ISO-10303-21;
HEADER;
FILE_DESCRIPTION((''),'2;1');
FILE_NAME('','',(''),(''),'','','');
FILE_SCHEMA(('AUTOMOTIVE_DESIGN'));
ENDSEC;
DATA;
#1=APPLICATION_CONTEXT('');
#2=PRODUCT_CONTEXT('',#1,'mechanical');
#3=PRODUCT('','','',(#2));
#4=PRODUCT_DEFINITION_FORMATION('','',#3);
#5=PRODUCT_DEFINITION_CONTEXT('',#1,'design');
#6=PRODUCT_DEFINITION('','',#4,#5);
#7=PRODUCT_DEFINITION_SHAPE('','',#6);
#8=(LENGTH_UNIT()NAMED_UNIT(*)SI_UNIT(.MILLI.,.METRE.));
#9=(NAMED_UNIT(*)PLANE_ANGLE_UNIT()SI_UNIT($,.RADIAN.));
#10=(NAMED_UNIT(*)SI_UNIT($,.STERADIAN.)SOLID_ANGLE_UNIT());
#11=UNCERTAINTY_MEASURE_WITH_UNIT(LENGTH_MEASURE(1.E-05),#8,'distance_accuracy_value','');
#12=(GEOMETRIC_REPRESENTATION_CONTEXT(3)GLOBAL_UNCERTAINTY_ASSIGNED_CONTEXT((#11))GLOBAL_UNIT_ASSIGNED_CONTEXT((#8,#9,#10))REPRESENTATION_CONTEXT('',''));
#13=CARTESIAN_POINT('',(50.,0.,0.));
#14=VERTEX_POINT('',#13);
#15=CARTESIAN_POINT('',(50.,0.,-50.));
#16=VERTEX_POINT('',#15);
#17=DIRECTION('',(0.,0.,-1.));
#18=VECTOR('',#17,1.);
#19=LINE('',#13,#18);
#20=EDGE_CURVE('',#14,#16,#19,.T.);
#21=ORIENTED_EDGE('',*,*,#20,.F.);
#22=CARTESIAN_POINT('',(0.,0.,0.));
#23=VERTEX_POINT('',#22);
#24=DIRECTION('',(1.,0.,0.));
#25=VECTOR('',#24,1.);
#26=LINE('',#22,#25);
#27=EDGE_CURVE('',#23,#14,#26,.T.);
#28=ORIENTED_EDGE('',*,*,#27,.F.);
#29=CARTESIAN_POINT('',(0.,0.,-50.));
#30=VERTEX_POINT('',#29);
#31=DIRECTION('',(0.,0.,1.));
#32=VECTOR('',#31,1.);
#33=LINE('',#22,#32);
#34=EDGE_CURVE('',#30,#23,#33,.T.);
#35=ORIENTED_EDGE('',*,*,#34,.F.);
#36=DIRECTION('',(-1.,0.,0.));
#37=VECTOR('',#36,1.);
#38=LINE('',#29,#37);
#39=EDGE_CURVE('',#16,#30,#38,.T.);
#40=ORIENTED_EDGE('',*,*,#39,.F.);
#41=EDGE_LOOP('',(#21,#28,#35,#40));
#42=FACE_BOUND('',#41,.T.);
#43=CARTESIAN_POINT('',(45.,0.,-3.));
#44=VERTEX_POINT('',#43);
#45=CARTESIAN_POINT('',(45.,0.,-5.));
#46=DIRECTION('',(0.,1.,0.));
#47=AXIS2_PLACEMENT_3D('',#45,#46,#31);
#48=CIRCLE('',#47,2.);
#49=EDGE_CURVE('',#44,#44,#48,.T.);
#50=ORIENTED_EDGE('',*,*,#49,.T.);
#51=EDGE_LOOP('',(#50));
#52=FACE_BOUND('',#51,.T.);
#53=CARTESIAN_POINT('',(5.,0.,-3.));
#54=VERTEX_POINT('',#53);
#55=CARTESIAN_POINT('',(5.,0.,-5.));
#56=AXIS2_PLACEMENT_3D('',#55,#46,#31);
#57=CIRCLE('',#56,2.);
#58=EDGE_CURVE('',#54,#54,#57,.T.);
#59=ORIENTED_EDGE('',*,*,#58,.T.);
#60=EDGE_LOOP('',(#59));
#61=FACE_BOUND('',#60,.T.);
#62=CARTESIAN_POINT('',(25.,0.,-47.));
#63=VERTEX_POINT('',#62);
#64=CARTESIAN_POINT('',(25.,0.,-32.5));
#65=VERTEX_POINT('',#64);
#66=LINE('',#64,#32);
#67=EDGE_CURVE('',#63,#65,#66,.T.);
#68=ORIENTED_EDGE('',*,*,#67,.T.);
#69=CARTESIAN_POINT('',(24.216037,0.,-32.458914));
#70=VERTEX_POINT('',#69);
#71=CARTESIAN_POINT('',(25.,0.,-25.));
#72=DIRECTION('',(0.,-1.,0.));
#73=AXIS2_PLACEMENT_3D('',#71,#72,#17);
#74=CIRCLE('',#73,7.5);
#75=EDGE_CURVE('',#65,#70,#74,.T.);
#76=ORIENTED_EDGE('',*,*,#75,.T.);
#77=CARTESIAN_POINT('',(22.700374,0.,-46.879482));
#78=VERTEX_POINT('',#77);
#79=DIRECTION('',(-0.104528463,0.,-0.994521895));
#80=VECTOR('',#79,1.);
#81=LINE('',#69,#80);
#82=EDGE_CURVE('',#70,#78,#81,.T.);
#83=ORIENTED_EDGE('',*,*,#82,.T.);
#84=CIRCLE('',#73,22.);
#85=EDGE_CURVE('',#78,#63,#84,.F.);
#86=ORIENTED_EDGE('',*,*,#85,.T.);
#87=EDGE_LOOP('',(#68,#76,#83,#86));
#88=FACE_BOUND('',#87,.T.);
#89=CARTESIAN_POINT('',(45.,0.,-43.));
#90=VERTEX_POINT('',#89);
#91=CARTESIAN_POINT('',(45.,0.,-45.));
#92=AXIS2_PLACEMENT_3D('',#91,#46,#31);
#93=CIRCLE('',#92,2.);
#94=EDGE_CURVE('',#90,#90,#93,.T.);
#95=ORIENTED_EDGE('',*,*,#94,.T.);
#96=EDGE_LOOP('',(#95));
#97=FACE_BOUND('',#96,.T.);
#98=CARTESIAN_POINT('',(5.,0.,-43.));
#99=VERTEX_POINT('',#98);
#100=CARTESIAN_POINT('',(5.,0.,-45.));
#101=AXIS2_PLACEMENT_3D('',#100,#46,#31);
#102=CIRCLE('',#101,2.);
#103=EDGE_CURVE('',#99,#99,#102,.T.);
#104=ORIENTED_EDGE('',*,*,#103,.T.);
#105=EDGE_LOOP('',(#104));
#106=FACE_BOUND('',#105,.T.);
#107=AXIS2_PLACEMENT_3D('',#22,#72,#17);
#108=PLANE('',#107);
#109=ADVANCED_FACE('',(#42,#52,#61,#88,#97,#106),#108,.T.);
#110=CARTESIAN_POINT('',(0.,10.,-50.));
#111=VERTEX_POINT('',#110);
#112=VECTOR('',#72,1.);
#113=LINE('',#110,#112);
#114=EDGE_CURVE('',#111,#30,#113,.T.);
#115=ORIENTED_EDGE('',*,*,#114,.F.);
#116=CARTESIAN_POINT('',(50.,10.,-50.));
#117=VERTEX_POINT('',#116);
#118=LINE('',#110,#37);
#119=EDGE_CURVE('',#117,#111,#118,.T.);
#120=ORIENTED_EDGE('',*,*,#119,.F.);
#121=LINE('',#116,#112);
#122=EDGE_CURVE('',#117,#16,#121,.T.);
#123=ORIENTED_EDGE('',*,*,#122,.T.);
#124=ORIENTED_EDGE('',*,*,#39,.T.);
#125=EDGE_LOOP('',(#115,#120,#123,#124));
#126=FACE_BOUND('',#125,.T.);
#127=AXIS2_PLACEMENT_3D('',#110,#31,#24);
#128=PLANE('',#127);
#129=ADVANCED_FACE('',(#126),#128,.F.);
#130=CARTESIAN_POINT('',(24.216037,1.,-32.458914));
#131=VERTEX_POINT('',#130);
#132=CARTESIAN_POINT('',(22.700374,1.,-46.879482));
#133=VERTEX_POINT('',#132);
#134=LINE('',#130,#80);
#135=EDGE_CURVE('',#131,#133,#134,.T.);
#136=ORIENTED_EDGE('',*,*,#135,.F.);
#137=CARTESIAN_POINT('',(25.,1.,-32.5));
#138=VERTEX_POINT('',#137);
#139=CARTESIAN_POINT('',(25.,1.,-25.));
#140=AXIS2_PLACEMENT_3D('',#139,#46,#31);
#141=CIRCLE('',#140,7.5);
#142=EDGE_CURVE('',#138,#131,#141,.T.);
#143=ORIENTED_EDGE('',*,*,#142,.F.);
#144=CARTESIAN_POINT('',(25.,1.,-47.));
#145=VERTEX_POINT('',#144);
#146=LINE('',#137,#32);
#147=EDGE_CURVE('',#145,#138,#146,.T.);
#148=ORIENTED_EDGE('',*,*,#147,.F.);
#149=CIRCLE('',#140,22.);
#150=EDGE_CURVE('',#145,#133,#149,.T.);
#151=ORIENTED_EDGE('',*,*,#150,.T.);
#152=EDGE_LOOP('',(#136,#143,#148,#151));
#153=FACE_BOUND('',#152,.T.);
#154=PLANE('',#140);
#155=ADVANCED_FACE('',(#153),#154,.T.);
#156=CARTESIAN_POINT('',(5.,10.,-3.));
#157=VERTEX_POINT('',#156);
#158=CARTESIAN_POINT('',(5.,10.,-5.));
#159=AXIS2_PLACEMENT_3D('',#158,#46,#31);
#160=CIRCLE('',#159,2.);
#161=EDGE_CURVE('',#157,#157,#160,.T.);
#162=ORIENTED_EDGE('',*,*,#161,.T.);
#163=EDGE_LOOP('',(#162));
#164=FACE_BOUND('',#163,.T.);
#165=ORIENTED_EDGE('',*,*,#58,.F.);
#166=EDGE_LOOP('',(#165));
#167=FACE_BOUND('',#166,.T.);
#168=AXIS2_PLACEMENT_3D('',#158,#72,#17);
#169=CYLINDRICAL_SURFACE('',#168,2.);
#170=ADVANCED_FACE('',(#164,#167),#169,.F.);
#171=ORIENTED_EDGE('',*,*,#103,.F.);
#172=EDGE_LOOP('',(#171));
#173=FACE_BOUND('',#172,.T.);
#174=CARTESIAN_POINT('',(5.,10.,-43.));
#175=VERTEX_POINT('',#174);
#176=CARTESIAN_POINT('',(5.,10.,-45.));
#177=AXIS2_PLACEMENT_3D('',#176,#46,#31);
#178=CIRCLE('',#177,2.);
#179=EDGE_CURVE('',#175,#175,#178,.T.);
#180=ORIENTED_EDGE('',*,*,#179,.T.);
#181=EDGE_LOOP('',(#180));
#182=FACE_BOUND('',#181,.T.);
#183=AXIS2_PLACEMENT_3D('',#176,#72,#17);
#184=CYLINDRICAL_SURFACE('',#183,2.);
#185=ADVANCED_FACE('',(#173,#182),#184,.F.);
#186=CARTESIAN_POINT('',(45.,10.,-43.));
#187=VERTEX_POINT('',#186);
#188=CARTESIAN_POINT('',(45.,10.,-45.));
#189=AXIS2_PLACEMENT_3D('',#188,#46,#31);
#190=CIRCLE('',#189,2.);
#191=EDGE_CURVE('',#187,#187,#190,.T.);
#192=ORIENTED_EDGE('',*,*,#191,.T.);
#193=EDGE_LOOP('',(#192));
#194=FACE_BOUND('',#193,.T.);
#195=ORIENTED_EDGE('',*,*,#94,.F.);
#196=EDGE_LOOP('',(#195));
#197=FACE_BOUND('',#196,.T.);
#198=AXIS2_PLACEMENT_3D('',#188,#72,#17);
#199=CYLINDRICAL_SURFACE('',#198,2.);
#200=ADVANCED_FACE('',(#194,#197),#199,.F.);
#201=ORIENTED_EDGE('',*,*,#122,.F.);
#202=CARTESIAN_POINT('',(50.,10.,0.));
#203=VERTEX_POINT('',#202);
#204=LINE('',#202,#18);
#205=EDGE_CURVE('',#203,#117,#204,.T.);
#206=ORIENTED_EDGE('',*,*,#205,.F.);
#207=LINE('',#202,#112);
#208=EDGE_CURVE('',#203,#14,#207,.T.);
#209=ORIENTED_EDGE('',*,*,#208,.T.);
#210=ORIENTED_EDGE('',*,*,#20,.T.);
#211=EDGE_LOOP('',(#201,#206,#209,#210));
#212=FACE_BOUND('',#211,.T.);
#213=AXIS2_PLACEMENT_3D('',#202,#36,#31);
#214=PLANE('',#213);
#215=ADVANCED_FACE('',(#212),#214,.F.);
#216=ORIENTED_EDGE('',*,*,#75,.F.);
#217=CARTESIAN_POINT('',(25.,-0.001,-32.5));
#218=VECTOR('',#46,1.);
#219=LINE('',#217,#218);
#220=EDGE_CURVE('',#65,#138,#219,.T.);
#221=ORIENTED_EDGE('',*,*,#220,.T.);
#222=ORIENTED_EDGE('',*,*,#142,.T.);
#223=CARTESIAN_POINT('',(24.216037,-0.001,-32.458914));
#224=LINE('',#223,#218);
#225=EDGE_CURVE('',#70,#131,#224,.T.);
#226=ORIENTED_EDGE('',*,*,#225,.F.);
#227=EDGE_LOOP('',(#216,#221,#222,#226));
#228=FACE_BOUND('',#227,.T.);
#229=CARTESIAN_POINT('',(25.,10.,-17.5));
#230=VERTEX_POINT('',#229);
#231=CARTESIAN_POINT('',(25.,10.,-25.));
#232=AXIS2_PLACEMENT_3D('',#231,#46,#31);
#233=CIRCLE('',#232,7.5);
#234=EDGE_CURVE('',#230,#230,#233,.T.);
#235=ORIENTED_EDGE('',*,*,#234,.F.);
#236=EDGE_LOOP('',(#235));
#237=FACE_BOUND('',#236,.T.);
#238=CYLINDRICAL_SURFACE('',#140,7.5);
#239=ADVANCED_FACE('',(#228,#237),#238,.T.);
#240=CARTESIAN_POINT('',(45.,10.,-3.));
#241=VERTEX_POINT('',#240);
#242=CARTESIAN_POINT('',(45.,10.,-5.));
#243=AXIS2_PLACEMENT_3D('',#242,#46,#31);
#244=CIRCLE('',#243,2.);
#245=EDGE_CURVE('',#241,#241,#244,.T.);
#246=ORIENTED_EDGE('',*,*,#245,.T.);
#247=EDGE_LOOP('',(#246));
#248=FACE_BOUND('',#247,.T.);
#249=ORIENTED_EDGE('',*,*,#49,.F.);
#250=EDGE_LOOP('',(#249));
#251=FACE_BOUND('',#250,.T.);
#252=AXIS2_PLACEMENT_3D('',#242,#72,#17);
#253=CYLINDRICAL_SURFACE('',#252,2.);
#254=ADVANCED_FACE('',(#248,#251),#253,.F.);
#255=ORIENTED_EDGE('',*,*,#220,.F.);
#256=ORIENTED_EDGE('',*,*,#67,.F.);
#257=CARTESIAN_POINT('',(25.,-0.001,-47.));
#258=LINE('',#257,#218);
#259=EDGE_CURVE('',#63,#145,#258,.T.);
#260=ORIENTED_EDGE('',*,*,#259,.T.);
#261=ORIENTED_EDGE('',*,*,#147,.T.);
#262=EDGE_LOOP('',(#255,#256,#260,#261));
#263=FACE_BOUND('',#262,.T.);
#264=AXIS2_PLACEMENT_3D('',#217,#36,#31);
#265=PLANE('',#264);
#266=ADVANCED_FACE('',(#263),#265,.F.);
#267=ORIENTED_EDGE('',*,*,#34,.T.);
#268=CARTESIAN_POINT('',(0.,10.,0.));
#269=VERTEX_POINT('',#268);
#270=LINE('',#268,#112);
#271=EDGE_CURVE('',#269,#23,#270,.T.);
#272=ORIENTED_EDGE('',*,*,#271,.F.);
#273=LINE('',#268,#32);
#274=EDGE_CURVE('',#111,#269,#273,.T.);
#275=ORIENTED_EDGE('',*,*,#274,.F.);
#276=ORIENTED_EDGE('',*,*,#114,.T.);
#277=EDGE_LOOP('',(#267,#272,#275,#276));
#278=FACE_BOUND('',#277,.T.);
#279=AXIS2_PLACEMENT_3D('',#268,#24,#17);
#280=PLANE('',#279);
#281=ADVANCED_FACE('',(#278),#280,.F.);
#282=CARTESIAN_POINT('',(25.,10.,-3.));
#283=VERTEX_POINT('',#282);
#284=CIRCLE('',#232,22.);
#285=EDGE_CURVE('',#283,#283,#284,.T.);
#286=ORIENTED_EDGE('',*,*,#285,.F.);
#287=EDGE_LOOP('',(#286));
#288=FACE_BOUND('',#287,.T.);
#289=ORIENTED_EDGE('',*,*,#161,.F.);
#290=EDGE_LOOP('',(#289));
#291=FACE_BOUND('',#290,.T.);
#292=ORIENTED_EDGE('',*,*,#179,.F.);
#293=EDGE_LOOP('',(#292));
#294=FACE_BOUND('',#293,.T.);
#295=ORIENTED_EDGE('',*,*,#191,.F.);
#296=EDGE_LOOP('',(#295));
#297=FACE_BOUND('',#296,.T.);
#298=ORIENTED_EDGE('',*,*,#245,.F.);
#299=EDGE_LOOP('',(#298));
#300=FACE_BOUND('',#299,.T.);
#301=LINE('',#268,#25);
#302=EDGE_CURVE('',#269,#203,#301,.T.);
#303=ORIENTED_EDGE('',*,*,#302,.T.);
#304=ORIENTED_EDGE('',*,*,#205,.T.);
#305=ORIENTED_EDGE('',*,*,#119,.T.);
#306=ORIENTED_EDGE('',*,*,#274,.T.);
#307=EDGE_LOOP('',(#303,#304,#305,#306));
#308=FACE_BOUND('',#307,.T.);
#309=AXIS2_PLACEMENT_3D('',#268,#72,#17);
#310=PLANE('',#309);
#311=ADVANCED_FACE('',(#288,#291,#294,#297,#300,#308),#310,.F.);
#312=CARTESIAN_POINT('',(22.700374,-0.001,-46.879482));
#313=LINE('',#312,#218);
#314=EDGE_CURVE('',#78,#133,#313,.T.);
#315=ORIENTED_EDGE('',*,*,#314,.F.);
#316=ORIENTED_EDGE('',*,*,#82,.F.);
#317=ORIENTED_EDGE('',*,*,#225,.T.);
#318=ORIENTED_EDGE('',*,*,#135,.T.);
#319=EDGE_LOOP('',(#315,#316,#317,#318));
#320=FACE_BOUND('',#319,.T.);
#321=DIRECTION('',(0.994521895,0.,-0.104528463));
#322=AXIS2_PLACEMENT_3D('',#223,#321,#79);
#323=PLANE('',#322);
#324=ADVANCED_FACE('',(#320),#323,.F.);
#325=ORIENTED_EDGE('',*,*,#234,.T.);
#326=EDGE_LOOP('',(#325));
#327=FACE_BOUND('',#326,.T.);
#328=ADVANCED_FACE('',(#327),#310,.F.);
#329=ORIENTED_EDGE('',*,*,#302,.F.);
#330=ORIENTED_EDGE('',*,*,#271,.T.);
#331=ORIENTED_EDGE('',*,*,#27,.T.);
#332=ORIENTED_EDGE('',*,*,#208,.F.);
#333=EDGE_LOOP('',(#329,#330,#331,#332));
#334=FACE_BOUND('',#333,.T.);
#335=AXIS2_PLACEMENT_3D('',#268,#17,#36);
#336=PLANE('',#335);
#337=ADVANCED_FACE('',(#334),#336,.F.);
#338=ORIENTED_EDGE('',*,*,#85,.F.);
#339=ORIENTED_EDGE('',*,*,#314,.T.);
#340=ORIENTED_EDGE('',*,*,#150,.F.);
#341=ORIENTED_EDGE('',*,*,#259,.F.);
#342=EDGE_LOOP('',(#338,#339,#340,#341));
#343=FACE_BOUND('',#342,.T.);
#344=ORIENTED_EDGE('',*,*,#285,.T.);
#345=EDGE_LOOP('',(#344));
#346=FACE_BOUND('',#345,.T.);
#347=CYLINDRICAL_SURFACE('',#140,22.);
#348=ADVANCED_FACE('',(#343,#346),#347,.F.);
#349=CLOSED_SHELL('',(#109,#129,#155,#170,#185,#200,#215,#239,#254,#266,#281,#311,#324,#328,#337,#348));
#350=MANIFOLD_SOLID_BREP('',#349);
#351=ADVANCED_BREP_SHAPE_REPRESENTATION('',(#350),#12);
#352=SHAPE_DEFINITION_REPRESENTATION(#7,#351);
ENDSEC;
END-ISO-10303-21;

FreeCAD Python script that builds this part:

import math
import FreeCAD as App
import Part
import Sketcher

V = App.Vector
Q = App.Units.Quantity


def add_polygon(sketch, points):
    """Adds a closed chain of lines whose ends are joined by coincident constraints."""
    first, n = sketch.GeometryCount, len(points)
    for a, b in zip(points, points[1:] + points[:1]):
        sketch.addGeometry(Part.LineSegment(App.Vector(*a, 0), App.Vector(*b, 0)), False)
    for i in range(n):
        sketch.addConstraint(Sketcher.Constraint("Coincident", first + i, 2, first + (i + 1) % n, 1))

doc = App.newDocument("Part")
body = doc.addObject("PartDesign::Body", "Body")

# Sketch on XZ plane
sketch1 = doc.addObject("Sketcher::SketchObject", "Sketch")
body.addObject(sketch1)
sketch1.AttachmentSupport = (doc.XZ_Plane, [""])
sketch1.MapMode = "FlatFace"
add_polygon(sketch1, [(0, -50), (0, 0), (50, 0), (50, -50)])  # lines 0-3
sketch1.addGeometry(Part.Circle(V(5, -5, 0), V(0, 0, 1), 2), False)  # 4
sketch1.addGeometry(Part.Circle(V(45, -5, 0), V(0, 0, 1), 2), False)  # 5
sketch1.addGeometry(Part.Circle(V(5, -45, 0), V(0, 0, 1), 2), False)  # 6
sketch1.addGeometry(Part.Circle(V(45, -45, 0), V(0, 0, 1), 2), False)  # 7
sketch1.addConstraint([
    Sketcher.Constraint("Vertical", 0),
    Sketcher.Constraint("Horizontal", 1),
    Sketcher.Constraint("Vertical", 2),
    Sketcher.Constraint("Horizontal", 3),
    Sketcher.Constraint("Coincident", 0, 2, -1, 1),
    Sketcher.Constraint("Equal", 4, 5),
    Sketcher.Constraint("Equal", 5, 6),
    Sketcher.Constraint("Equal", 6, 7),
    Sketcher.Constraint("Horizontal", 4, 3, 5, 3),
    Sketcher.Constraint("Horizontal", 6, 3, 7, 3),
    Sketcher.Constraint("Vertical", 4, 3, 6, 3),
    Sketcher.Constraint("Vertical", 5, 3, 7, 3),
    Sketcher.Constraint("Equal", 3, 0),
    Sketcher.Constraint("Diameter", 4, 4.0),
    Sketcher.Constraint("DistanceX", 1, 1, 1, 2, 50.0),
    Sketcher.Constraint("DistanceX", -1, 1, 4, 3, 5.0),
    Sketcher.Constraint("DistanceY", 4, 3, -1, 1, 5.0),
    Sketcher.Constraint("DistanceX", -1, 1, 5, 3, 45.0),
    Sketcher.Constraint("DistanceY", 6, 3, -1, 1, 45.0),
])
pad1 = doc.addObject("PartDesign::Pad", "Pad")
body.addObject(pad1)
pad1.Profile = sketch1
pad1.Length = 10
pad1.Reversed = True

# Sketch on XZ plane
sketch2 = doc.addObject("Sketcher::SketchObject", "Sketch001")
body.addObject(sketch2)
sketch2.AttachmentSupport = (doc.XZ_Plane, [""])
sketch2.MapMode = "FlatFace"
sketch2.AttachmentOffset = App.Placement(V(0, 0, -10), App.Rotation())
sketch2.addGeometry([
    Part.Circle(V(25, -25, 0), V(0, 0, 1), 22),
    Part.Circle(V(25, -25, 0), V(0, 0, 1), 7.5),
], False)
sketch2.addConstraint([
    Sketcher.Constraint("Coincident", 1, 3, 0, 3),
    Sketcher.Constraint("Diameter", 0, 44.0),
    Sketcher.Constraint("Diameter", 1, 15.0),
    Sketcher.Constraint("DistanceX", -1, 1, 0, 3, 25.0),
    Sketcher.Constraint("DistanceY", 0, 3, -1, 1, 25.0),
])
pocket1 = doc.addObject("PartDesign::Pocket", "Pocket")
body.addObject(pocket1)
pocket1.Profile = sketch2
pocket1.Length = 9
pocket1.Reversed = True

# Sketch on XZ plane
sketch3 = doc.addObject("Sketcher::SketchObject", "Sketch002")
body.addObject(sketch3)
sketch3.AttachmentSupport = (doc.XZ_Plane, [""])
sketch3.MapMode = "FlatFace"
sketch3.AttachmentOffset = App.Placement(V(0, 0, -1), App.Rotation())
sketch3.addGeometry([
    Part.LineSegment(V(24.216037, -32.458914, 0), V(22.700374, -46.879482, 0)),
    Part.ArcOfCircle(Part.Circle(V(25, -25, 0), V(0, 0, 1), 22), math.radians(-90), math.radians(264)),
    Part.LineSegment(V(25, -47, 0), V(25, -32.5, 0)),
    Part.ArcOfCircle(Part.Circle(V(25, -25, 0), V(0, 0, 1), 7.5), math.radians(-90), math.radians(264)),
], False)
sketch3.addConstraint([
    Sketcher.Constraint("Coincident", 0, 2, 1, 2),
    Sketcher.Constraint("Coincident", 1, 1, 2, 1),
    Sketcher.Constraint("Coincident", 2, 2, 3, 1),
    Sketcher.Constraint("Coincident", 3, 2, 0, 1),
    Sketcher.Constraint("Vertical", 2),
    Sketcher.Constraint("Coincident", 3, 3, 1, 3),
    Sketcher.Constraint("Vertical", 3, 3, 1, 1),
    Sketcher.Constraint("Radius", 1, 22.0),
    Sketcher.Constraint("Radius", 3, 7.5),
    Sketcher.Constraint("Angle", 0, Q("-96 deg")),
    Sketcher.Constraint("DistanceX", -1, 1, 1, 3, 25.0),
    Sketcher.Constraint("DistanceY", 1, 3, -1, 1, 25.0),
    Sketcher.Constraint("DistanceY", 0, 2, -1, 1, 46.879482),
])
pocket2 = doc.addObject("PartDesign::Pocket", "Pocket001")
body.addObject(pocket2)
pocket2.Profile = sketch3
pocket2.Length = 1
pocket2.Reversed = True

doc.recompute()
